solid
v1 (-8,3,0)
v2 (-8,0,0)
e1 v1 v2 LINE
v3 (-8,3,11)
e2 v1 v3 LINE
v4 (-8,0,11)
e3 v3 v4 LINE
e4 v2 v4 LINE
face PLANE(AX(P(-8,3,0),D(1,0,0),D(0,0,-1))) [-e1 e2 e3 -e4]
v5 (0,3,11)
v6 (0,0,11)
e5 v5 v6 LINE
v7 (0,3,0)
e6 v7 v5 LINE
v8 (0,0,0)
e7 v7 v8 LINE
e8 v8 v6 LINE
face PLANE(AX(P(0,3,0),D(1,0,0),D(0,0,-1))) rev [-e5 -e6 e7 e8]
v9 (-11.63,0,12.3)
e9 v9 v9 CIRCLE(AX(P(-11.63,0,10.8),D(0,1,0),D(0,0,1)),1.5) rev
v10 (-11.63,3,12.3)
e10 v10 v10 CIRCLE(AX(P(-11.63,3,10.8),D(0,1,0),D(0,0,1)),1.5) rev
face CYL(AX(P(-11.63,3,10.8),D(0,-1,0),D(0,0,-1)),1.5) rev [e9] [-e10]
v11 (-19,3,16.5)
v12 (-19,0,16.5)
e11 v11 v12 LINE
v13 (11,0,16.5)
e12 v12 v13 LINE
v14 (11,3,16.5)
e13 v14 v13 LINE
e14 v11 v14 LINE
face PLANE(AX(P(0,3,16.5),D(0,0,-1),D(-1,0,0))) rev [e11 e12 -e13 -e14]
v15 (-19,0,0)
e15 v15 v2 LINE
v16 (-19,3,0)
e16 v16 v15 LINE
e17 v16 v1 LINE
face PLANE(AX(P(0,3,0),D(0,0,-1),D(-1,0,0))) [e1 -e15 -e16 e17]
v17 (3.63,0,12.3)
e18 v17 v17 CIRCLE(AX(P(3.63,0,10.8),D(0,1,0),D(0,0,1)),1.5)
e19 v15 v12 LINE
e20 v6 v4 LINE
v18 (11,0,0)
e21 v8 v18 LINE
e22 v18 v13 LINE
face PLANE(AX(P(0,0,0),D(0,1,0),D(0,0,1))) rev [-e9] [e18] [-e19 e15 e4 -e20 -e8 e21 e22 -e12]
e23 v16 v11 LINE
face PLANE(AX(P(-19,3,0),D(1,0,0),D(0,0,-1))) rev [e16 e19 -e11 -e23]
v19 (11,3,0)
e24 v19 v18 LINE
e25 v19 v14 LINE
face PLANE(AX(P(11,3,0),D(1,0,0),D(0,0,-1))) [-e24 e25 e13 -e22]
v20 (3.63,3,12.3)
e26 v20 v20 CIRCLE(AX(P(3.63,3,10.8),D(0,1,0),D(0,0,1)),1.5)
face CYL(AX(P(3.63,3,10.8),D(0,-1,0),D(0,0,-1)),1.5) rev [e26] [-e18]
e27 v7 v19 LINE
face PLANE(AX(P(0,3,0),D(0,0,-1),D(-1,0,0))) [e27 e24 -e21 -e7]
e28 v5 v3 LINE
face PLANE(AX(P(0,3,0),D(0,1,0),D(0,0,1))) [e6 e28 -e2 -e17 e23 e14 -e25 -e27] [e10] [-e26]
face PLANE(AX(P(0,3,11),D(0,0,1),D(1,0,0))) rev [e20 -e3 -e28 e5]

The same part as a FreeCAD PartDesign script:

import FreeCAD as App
import Part
import Sketcher

doc = App.newDocument("Part")
body = doc.addObject("PartDesign::Body", "Body")

# Sketch on XZ plane
sketch1 = body.newObject("Sketcher::SketchObject", "Sketch")
sketch1.AttachmentSupport = (doc.getObject("XZ_Plane"), [""])
sketch1.MapMode = "FlatFace"
sketch1.addGeometry([
    Part.LineSegment(App.Vector(11, 0, 0), App.Vector(0, 0, 0)),  # 0
    Part.LineSegment(App.Vector(0, 0, 0), App.Vector(0, 11, 0)),  # 1
    Part.LineSegment(App.Vector(0, 11, 0), App.Vector(-8, 11, 0)),  # 2
    Part.LineSegment(App.Vector(-8, 11, 0), App.Vector(-8, 0, 0)),  # 3
    Part.LineSegment(App.Vector(-8, 0, 0), App.Vector(-19, 0, 0)),  # 4
    Part.LineSegment(App.Vector(-19, 0, 0), App.Vector(-19, 16.5, 0)),  # 5
    Part.LineSegment(App.Vector(-19, 16.5, 0), App.Vector(11, 16.5, 0)),  # 6
    Part.LineSegment(App.Vector(11, 16.5, 0), App.Vector(11, 0, 0)),  # 7
    Part.Circle(App.Vector(-11.6, 10.8, 0), App.Vector(0, 0, 1), 1.5),  # 8
    Part.Circle(App.Vector(3.6, 10.8, 0), App.Vector(0, 0, 1), 1.5),  # 9
], False)
sketch1.addConstraint([
    Sketcher.Constraint("Coincident", 0, 2, 1, 1),
    Sketcher.Constraint("Coincident", 1, 2, 2, 1),
    Sketcher.Constraint("Coincident", 2, 2, 3, 1),
    Sketcher.Constraint("Coincident", 3, 2, 4, 1),
    Sketcher.Constraint("Coincident", 4, 2, 5, 1),
    Sketcher.Constraint("Coincident", 5, 2, 6, 1),
    Sketcher.Constraint("Coincident", 6, 2, 7, 1),
    Sketcher.Constraint("Coincident", 7, 2, 0, 1),
    Sketcher.Constraint("Horizontal", 0),
    Sketcher.Constraint("Vertical", 1),
    Sketcher.Constraint("Horizontal", 2),
    Sketcher.Constraint("Vertical", 3),
    Sketcher.Constraint("Horizontal", 4),
    Sketcher.Constraint("Vertical", 5),
    Sketcher.Constraint("Horizontal", 6),
    Sketcher.Constraint("Vertical", 7),
    Sketcher.Constraint("Coincident", 0, 2, -1, 1),
    Sketcher.Constraint("Equal", 8, 9),
    Sketcher.Constraint("PointOnObject", 3, 2, -1),
    Sketcher.Constraint("Horizontal", 8, 3, 9, 3),
    Sketcher.Constraint("Equal", 0, 4),
    Sketcher.Constraint("Equal", 4, 1),
    Sketcher.Constraint("Diameter", 8, 3.0),
    Sketcher.Constraint("DistanceX", 0, 2, 0, 1, 11.0),
    Sketcher.Constraint("DistanceX", 2, 2, 2, 1, 8.0),
    Sketcher.Constraint("DistanceY", 5, 1, 5, 2, 16.5),
    Sketcher.Constraint("DistanceY", -1, 1, 8, 3, 10.8),
    Sketcher.Constraint("DistanceX", 8, 3, -1, 1, 11.63),
    Sketcher.Constraint("DistanceX", -1, 1, 9, 3, 3.63),
])
pad1 = body.newObject("PartDesign::Pad", "Pad")
pad1.Profile = sketch1
pad1.Length = 3
pad1.Reversed = True

doc.recompute()
